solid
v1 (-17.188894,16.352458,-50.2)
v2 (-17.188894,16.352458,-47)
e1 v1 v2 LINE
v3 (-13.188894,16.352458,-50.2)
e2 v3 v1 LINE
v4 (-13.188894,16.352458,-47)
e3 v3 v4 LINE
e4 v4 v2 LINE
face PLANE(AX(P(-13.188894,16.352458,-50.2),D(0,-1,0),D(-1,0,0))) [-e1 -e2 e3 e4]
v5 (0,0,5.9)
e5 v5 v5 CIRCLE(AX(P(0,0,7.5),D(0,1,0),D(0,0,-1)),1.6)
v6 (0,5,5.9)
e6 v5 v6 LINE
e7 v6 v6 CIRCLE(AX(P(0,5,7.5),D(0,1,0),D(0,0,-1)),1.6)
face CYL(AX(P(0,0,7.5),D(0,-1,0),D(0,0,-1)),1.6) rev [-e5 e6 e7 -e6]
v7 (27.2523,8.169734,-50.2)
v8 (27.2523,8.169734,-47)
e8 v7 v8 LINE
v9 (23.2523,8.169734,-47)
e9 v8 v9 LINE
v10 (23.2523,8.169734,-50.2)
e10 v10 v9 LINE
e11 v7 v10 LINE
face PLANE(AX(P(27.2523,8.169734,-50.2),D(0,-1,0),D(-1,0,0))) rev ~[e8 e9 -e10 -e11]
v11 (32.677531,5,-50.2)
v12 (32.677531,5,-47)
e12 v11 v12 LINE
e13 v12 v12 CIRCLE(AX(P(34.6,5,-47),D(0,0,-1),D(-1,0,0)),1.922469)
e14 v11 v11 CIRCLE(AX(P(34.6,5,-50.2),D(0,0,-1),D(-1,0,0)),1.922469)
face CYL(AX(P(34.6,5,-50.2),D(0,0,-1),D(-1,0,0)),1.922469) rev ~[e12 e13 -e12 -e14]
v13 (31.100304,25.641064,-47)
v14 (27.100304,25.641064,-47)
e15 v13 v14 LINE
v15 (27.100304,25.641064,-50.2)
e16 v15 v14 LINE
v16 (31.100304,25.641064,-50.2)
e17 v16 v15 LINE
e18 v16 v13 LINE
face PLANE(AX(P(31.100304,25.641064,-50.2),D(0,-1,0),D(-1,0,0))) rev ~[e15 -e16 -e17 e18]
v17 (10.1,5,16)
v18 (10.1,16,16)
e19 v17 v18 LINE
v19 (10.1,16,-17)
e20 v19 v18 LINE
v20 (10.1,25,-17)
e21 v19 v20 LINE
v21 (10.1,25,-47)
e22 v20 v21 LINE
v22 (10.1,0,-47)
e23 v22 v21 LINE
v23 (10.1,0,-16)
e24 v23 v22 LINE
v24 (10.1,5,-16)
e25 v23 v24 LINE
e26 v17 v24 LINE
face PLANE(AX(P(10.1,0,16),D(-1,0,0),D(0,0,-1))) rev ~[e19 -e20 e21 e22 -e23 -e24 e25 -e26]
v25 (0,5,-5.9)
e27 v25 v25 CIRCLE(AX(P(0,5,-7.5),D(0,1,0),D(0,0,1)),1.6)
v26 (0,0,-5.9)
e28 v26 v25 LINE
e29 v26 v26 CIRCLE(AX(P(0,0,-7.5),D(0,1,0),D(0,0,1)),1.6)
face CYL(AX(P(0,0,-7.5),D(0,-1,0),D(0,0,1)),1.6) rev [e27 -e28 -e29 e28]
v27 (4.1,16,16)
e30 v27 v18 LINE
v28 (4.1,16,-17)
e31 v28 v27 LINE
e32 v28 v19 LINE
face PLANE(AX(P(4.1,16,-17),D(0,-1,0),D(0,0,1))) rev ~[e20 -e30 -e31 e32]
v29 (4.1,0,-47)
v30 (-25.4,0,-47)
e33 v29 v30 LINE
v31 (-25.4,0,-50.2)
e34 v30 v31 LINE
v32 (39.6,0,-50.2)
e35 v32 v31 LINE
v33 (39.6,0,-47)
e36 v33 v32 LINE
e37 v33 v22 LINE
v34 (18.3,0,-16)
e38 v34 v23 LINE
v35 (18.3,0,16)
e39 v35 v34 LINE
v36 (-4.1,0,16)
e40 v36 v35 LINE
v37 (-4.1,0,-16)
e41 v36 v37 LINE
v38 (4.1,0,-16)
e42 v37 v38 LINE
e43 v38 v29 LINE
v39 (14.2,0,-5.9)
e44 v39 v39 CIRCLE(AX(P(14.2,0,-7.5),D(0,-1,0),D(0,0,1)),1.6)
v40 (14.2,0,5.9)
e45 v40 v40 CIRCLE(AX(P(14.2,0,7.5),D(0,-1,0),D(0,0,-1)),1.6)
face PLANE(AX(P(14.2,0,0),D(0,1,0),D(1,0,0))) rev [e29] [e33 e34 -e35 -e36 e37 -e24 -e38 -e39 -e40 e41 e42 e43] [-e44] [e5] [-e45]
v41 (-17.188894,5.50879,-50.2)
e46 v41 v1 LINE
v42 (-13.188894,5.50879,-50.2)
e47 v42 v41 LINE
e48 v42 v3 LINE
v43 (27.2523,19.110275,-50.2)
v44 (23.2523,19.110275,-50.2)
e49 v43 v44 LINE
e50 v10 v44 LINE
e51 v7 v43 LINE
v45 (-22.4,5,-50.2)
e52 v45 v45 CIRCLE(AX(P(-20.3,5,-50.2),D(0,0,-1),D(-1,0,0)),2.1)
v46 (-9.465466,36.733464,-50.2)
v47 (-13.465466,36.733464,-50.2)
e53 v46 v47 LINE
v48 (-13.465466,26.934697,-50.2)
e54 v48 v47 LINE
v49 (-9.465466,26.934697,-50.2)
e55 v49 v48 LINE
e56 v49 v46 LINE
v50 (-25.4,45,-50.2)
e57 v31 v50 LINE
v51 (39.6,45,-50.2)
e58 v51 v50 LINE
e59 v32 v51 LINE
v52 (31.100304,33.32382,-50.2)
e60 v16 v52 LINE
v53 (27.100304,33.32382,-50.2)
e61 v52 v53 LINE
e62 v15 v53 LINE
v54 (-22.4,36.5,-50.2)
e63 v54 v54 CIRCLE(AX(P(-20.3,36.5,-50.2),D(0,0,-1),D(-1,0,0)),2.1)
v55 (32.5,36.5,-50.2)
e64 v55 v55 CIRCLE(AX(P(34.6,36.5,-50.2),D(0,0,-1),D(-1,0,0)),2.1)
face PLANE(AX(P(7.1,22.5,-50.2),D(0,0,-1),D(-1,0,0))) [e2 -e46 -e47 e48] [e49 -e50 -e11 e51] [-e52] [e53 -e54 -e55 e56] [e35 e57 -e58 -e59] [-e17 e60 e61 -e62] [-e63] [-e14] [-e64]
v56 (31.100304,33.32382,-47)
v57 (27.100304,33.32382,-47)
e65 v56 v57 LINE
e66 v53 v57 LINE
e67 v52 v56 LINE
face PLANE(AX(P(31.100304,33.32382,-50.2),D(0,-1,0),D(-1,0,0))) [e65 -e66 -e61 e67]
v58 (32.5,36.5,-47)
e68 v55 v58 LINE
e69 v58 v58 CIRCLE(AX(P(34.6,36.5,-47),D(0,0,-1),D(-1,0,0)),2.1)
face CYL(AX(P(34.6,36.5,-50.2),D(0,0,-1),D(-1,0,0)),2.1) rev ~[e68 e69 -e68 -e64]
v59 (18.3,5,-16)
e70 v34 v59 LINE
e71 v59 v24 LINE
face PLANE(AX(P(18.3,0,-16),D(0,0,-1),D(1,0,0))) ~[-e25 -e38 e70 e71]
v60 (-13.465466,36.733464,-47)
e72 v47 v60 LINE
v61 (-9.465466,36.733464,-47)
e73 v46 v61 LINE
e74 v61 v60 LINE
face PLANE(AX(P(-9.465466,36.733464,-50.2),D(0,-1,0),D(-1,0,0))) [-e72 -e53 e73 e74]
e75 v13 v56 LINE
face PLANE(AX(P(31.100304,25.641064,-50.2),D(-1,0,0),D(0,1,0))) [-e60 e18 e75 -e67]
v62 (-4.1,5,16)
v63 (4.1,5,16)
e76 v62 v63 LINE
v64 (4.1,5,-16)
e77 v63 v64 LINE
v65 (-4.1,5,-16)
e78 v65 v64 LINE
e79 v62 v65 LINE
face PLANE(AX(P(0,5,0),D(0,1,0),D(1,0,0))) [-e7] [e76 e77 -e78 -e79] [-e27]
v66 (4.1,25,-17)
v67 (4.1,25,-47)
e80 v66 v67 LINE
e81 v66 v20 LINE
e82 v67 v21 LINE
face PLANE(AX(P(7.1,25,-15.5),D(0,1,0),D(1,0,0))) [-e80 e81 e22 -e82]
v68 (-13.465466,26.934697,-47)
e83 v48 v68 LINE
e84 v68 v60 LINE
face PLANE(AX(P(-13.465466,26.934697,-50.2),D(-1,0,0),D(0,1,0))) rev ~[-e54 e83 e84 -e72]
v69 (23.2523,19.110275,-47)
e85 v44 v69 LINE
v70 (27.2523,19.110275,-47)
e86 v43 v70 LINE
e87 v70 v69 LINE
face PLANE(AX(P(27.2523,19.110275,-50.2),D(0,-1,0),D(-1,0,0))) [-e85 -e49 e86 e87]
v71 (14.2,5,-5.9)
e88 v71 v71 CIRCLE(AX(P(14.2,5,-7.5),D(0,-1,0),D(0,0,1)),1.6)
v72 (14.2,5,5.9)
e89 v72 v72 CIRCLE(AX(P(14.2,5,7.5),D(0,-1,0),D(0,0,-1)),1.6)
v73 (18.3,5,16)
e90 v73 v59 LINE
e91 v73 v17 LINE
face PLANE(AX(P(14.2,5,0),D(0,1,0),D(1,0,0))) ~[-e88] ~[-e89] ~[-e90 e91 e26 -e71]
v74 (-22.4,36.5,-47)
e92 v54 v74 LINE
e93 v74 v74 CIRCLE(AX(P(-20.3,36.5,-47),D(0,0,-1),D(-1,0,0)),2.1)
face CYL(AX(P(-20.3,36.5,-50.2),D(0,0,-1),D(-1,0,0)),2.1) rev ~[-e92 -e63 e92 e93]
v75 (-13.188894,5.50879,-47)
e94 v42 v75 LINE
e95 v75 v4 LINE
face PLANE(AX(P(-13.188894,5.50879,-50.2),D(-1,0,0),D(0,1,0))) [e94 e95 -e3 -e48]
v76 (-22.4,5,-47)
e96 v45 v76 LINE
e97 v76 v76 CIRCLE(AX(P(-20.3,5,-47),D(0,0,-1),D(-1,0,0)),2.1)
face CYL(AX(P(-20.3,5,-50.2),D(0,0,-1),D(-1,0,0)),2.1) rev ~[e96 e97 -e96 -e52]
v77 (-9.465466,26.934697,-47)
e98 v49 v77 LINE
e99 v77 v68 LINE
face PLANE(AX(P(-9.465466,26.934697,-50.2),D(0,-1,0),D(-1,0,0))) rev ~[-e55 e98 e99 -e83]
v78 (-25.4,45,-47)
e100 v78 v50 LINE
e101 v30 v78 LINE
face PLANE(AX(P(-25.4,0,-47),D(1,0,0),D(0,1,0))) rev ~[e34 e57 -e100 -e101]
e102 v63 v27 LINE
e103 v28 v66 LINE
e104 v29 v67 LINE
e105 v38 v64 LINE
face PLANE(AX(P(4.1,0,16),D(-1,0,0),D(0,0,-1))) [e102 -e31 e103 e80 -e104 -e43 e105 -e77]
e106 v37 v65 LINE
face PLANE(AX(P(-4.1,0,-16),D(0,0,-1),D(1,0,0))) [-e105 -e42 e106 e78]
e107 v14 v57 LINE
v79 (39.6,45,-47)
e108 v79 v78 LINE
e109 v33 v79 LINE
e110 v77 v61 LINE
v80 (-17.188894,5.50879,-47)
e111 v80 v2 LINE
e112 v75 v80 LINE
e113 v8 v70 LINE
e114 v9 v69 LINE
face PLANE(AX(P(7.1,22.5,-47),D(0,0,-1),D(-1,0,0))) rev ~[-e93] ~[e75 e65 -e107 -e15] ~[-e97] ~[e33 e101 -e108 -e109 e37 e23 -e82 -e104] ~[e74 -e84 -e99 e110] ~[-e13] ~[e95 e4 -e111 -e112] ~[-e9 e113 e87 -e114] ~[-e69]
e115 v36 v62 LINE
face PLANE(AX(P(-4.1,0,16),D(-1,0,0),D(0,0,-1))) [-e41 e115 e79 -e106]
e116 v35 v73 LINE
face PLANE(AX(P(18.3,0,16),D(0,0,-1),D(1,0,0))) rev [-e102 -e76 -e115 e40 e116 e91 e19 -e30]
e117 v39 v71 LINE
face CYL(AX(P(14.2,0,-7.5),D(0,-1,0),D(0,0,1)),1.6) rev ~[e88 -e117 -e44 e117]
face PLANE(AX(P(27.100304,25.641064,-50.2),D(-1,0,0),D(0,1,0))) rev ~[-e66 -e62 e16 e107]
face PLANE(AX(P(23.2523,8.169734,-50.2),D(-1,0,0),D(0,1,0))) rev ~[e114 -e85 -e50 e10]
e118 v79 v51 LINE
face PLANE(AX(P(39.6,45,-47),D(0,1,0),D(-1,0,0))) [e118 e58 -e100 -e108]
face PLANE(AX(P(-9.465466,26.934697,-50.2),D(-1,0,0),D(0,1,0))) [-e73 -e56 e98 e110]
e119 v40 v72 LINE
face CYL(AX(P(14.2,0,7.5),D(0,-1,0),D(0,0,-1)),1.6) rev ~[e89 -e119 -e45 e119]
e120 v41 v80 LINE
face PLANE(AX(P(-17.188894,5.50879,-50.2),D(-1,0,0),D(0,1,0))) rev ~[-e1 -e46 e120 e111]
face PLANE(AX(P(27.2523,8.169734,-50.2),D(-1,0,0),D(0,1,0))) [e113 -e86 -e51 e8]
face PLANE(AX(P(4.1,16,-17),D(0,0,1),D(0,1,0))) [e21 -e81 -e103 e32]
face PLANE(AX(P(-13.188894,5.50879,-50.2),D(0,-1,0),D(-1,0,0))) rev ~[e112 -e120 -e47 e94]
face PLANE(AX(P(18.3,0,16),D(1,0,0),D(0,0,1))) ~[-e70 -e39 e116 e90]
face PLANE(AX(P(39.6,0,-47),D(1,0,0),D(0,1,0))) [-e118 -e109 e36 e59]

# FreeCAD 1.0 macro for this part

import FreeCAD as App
import Part
import Sketcher


def add_polygon(sketch, points):
    """Adds a closed chain of lines whose ends are joined by coincident constraints."""
    first, n = sketch.GeometryCount, len(points)
    for a, b in zip(points, points[1:] + points[:1]):
        sketch.addGeometry(Part.LineSegment(App.Vector(*a, 0), App.Vector(*b, 0)), False)
    for i in range(n):
        sketch.addConstraint(Sketcher.Constraint("Coincident", first + i, 2, first + (i + 1) % n, 1))

doc = App.newDocument("Part")
body = doc.addObject("PartDesign::Body", "Body")

# Sketch on XZ plane
sketch1 = body.newObject("Sketcher::SketchObject", "Sketch")
sketch1.AttachmentSupport = (doc.getObject("XZ_Plane"), [""])
sketch1.MapMode = "FlatFace"
add_polygon(sketch1, [(-4.1, -16), (-4.1, 16), (4.1, 16), (4.1, -16)])  # lines 0-3
sketch1.addGeometry(Part.Circle(App.Vector(0, 7.5, 0), App.Vector(0, 0, 1), 1.6), False)  # 4
sketch1.addGeometry(Part.Circle(App.Vector(0, -7.5, 0), App.Vector(0, 0, 1), 1.6), False)  # 5
sketch1.addConstraint(Sketcher.Constraint("Vertical", 0))
sketch1.addConstraint(Sketcher.Constraint("Horizontal", 1))
sketch1.addConstraint(Sketcher.Constraint("Vertical", 2))
sketch1.addConstraint(Sketcher.Constraint("Horizontal", 3))
sketch1.addConstraint(Sketcher.Constraint("Equal", 4, 5))
sketch1.addConstraint(Sketcher.Constraint("Symmetric", 4, 3, 5, 3, -1, 1))
sketch1.addConstraint(Sketcher.Constraint("Symmetric", 0, 2, 2, 2, -1, 1))
sketch1.addConstraint(Sketcher.Constraint("PointOnObject", 4, 3, -2))
sketch1.addConstraint(Sketcher.Constraint("Diameter", 4, 3.2))
sketch1.addConstraint(Sketcher.Constraint("DistanceY", 0, 1, 0, 2, 32.0))
sketch1.addConstraint(Sketcher.Constraint("DistanceX", 1, 1, 1, 2, 8.2))
sketch1.addConstraint(Sketcher.Constraint("DistanceY", 5, 3, 4, 3, 15.0))
pad1 = body.newObject("PartDesign::Pad", "Pad")
pad1.Profile = sketch1
pad1.Length = 5
pad1.Reversed = True

# Sketch on XZ plane
sketch2 = body.newObject("Sketcher::SketchObject", "Sketch001")
sketch2.AttachmentSupport = (doc.getObject("XZ_Plane"), [""])
sketch2.MapMode = "FlatFace"
add_polygon(sketch2, [(4.1, -47), (4.1, 16), (10.1, 16), (10.1, -47)])  # lines 0-3
sketch2.addConstraint(Sketcher.Constraint("Vertical", 0))
sketch2.addConstraint(Sketcher.Constraint("Horizontal", 1))
sketch2.addConstraint(Sketcher.Constraint("Vertical", 2))
sketch2.addConstraint(Sketcher.Constraint("Horizontal", 3))
sketch2.addConstraint(Sketcher.Constraint("DistanceX", 1, 1, 1, 2, 6.0))
sketch2.addConstraint(Sketcher.Constraint("DistanceY", 0, 1, 0, 2, 63.0))
sketch2.addConstraint(Sketcher.Constraint("DistanceY", -1, 1, 0, 2, 16.0))
sketch2.addConstraint(Sketcher.Constraint("DistanceX", -1, 1, 0, 2, 4.1))
pad2 = body.newObject("PartDesign::Pad", "Pad001")
pad2.Profile = sketch2
pad2.Length = 25
pad2.Reversed = True

# Sketch on XY plane
sketch3 = body.newObject("Sketcher::SketchObject", "Sketch002")
sketch3.AttachmentSupport = (doc.getObject("XY_Plane"), [""])
sketch3.MapMode = "FlatFace"
sketch3.AttachmentOffset = App.Placement(App.Vector(0, 0, -47), App.Rotation())
add_polygon(sketch3, [(39.6, 45), (39.6, 0), (-25.4, 0), (-25.4, 45)])  # lines 0-3
sketch3.addConstraint(Sketcher.Constraint("Vertical", 0))
sketch3.addConstraint(Sketcher.Constraint("Horizontal", 1))
sketch3.addConstraint(Sketcher.Constraint("Vertical", 2))
sketch3.addConstraint(Sketcher.Constraint("Horizontal", 3))
sketch3.addConstraint(Sketcher.Constraint("PointOnObject", 0, 2, -1))
sketch3.addConstraint(Sketcher.Constraint("DistanceX", 1, 2, 1, 1, 65.0))
sketch3.addConstraint(Sketcher.Constraint("DistanceY", 0, 2, 0, 1, 45.0))
sketch3.addConstraint(Sketcher.Constraint("DistanceX", -1, 1, 0, 2, 39.6))
pad3 = body.newObject("PartDesign::Pad", "Pad002")
pad3.Profile = sketch3
pad3.Length = 3.2
pad3.Reversed = True

# Sketch on XY plane
sketch4 = body.newObject("Sketcher::SketchObject", "Sketch003")
sketch4.AttachmentSupport = (doc.getObject("XY_Plane"), [""])
sketch4.MapMode = "FlatFace"
sketch4.AttachmentOffset = App.Placement(App.Vector(0, 0, -50.2), App.Rotation())
sketch4.addGeometry(Part.Circle(App.Vector(34.6, 5, 0), App.Vector(0, 0, 1), 1.922469), False)
sketch4.addGeometry(Part.Circle(App.Vector(-20.3, 5, 0), App.Vector(0, 0, 1), 2.1), False)
sketch4.addGeometry(Part.Circle(App.Vector(34.6, 36.5, 0), App.Vector(0, 0, 1), 2.1), False)
sketch4.addGeometry(Part.Circle(App.Vector(-20.3, 36.5, 0), App.Vector(0, 0, 1), 2.1), False)
sketch4.addConstraint(Sketcher.Constraint("Equal", 1, 2))
sketch4.addConstraint(Sketcher.Constraint("Equal", 2, 3))
sketch4.addConstraint(Sketcher.Constraint("Horizontal", 0, 3, 1, 3))
sketch4.addConstraint(Sketcher.Constraint("Horizontal", 2, 3, 3, 3))
sketch4.addConstraint(Sketcher.Constraint("Vertical", 0, 3, 2, 3))
sketch4.addConstraint(Sketcher.Constraint("Vertical", 1, 3, 3, 3))
sketch4.addConstraint(Sketcher.Constraint("Diameter", 1, 4.2))
sketch4.addConstraint(Sketcher.Constraint("DistanceY", -1, 1, 0, 3, 5.0))
sketch4.addConstraint(Sketcher.Constraint("DistanceX", -1, 1, 0, 3, 34.6))
sketch4.addConstraint(Sketcher.Constraint("DistanceX", 1, 3, -1, 1, 20.3))
sketch4.addConstraint(Sketcher.Constraint("DistanceY", -1, 1, 2, 3, 36.5))
sketch4.addConstraint(Sketcher.Constraint("Diameter", 0, 3.844938))
pocket1 = body.newObject("PartDesign::Pocket", "Pocket")
pocket1.Profile = sketch4
pocket1.Length = 13.2
pocket1.Reversed = True

# Sketch on XY plane
sketch5 = body.newObject("Sketcher::SketchObject", "Sketch004")
sketch5.AttachmentSupport = (doc.getObject("XY_Plane"), [""])
sketch5.MapMode = "FlatFace"
sketch5.AttachmentOffset = App.Placement(App.Vector(0, 0, -50.2), App.Rotation())
add_polygon(sketch5, [(31.100304, 33.32382), (31.100304, 25.641064), (27.100304, 25.641064), (27.100304, 33.32382)])  # lines 0-3
add_polygon(sketch5, [(27.2523, 19.110275), (27.2523, 8.169734), (23.2523, 8.169734), (23.2523, 19.110275)])  # lines 4-7
add_polygon(sketch5, [(-9.465466, 36.733464), (-9.465466, 26.934697), (-13.465466, 26.934697), (-13.465466, 36.733464)])  # lines 8-11
add_polygon(sketch5, [(-13.188894, 16.352458), (-13.188894, 5.50879), (-17.188894, 5.50879), (-17.188894, 16.352458)])  # lines 12-15
sketch5.addConstraint(Sketcher.Constraint("Vertical", 0))
sketch5.addConstraint(Sketcher.Constraint("Horizontal", 1))
sketch5.addConstraint(Sketcher.Constraint("Vertical", 2))
sketch5.addConstraint(Sketcher.Constraint("Horizontal", 3))
sketch5.addConstraint(Sketcher.Constraint("Vertical", 4))
sketch5.addConstraint(Sketcher.Constraint("Horizontal", 5))
sketch5.addConstraint(Sketcher.Constraint("Vertical", 6))
sketch5.addConstraint(Sketcher.Constraint("Horizontal", 7))
sketch5.addConstraint(Sketcher.Constraint("Vertical", 8))
sketch5.addConstraint(Sketcher.Constraint("Horizontal", 9))
sketch5.addConstraint(Sketcher.Constraint("Vertical", 10))
sketch5.addConstraint(Sketcher.Constraint("Horizontal", 11))
sketch5.addConstraint(Sketcher.Constraint("Vertical", 12))
sketch5.addConstraint(Sketcher.Constraint("Horizontal", 13))
sketch5.addConstraint(Sketcher.Constraint("Vertical", 14))
sketch5.addConstraint(Sketcher.Constraint("Horizontal", 15))
sketch5.addConstraint(Sketcher.Constraint("Equal", 3, 5))
sketch5.addConstraint(Sketcher.Constraint("Equal", 7, 9))
sketch5.addConstraint(Sketcher.Constraint("Equal", 11, 13))
sketch5.addConstraint(Sketcher.Constraint("DistanceX", 1, 2, 1, 1, 4.0))
sketch5.addConstraint(Sketcher.Constraint("DistanceY", 4, 2, 4, 1, 10.94054))
sketch5.addConstraint(Sketcher.Constraint("DistanceY", 12, 2, 12, 1, 10.843668))
sketch5.addConstraint(Sketcher.Constraint("DistanceX", -1, 1, 4, 2, 27.2523))
sketch5.addConstraint(Sketcher.Constraint("DistanceY", 1, 2, 10, 2, 11.0924))
sketch5.addConstraint(Sketcher.Constraint("DistanceY", 0, 2, 0, 1, 7.682756))
sketch5.addConstraint(Sketcher.Constraint("DistanceY", 8, 2, 8, 1, 9.798767))
sketch5.addConstraint(Sketcher.Constraint("DistanceY", -1, 1, 2, 2, 33.32382))
sketch5.addConstraint(Sketcher.Constraint("DistanceY", -1, 1, 12, 2, 5.50879))
sketch5.addConstraint(Sketcher.Constraint("DistanceY", 4, 2, 1, 2, 17.47133))
sketch5.addConstraint(Sketcher.Constraint("DistanceX", 8, 2, 1, 2, 36.56577))
sketch5.addConstraint(Sketcher.Constraint("DistanceX", 9, 2, 12, 2, 0.276572))
sketch5.addConstraint(Sketcher.Constraint("DistanceX", -1, 1, 0, 2, 31.100304))
pocket2 = body.newObject("PartDesign::Pocket", "Pocket001")
pocket2.Profile = sketch5
pocket2.Length = 13.2
pocket2.Reversed = True
doc.recompute()

datumplane = body.newObject("PartDesign::Plane", "DatumPlane")
datumplane.AttachmentSupport = (doc.getObject("YZ_Plane"), [""])
datumplane.MapMode = "FlatFace"
datumplane.AttachmentOffset = App.Placement(App.Vector(0, 0, 7.1), App.Rotation())
mirrored = body.newObject("PartDesign::Mirrored", "Mirrored")
mirrored.Originals = [pad1]
mirrored.MirrorPlane = (datumplane, [""])
body.Tip = mirrored

# Sketch on YZ plane
sketch6 = body.newObject("Sketcher::SketchObject", "Sketch005")
sketch6.AttachmentSupport = (doc.getObject("YZ_Plane"), [""])
sketch6.MapMode = "FlatFace"
sketch6.AttachmentOffset = App.Placement(App.Vector(0, 0, 4.1), App.Rotation())
add_polygon(sketch6, [(25, -17), (16, -17), (16, 16), (25, 16)])  # lines 0-3
sketch6.addConstraint(Sketcher.Constraint("Horizontal", 0))
sketch6.addConstraint(Sketcher.Constraint("Vertical", 1))
sketch6.addConstraint(Sketcher.Constraint("Horizontal", 2))
sketch6.addConstraint(Sketcher.Constraint("Vertical", 3))
sketch6.addConstraint(Sketcher.Constraint("DistanceX", 0, 2, 0, 1, 9.0))
sketch6.addConstraint(Sketcher.Constraint("DistanceY", 1, 1, 1, 2, 33.0))
sketch6.addConstraint(Sketcher.Constraint("DistanceX", -1, 1, 0, 2, 16.0))
sketch6.addConstraint(Sketcher.Constraint("DistanceY", 0, 2, -1, 1, 17.0))
pocket3 = body.newObject("PartDesign::Pocket", "Pocket002")
pocket3.Profile = sketch6
pocket3.Length = 13.2
pocket3.Reversed = True

doc.recompute()
